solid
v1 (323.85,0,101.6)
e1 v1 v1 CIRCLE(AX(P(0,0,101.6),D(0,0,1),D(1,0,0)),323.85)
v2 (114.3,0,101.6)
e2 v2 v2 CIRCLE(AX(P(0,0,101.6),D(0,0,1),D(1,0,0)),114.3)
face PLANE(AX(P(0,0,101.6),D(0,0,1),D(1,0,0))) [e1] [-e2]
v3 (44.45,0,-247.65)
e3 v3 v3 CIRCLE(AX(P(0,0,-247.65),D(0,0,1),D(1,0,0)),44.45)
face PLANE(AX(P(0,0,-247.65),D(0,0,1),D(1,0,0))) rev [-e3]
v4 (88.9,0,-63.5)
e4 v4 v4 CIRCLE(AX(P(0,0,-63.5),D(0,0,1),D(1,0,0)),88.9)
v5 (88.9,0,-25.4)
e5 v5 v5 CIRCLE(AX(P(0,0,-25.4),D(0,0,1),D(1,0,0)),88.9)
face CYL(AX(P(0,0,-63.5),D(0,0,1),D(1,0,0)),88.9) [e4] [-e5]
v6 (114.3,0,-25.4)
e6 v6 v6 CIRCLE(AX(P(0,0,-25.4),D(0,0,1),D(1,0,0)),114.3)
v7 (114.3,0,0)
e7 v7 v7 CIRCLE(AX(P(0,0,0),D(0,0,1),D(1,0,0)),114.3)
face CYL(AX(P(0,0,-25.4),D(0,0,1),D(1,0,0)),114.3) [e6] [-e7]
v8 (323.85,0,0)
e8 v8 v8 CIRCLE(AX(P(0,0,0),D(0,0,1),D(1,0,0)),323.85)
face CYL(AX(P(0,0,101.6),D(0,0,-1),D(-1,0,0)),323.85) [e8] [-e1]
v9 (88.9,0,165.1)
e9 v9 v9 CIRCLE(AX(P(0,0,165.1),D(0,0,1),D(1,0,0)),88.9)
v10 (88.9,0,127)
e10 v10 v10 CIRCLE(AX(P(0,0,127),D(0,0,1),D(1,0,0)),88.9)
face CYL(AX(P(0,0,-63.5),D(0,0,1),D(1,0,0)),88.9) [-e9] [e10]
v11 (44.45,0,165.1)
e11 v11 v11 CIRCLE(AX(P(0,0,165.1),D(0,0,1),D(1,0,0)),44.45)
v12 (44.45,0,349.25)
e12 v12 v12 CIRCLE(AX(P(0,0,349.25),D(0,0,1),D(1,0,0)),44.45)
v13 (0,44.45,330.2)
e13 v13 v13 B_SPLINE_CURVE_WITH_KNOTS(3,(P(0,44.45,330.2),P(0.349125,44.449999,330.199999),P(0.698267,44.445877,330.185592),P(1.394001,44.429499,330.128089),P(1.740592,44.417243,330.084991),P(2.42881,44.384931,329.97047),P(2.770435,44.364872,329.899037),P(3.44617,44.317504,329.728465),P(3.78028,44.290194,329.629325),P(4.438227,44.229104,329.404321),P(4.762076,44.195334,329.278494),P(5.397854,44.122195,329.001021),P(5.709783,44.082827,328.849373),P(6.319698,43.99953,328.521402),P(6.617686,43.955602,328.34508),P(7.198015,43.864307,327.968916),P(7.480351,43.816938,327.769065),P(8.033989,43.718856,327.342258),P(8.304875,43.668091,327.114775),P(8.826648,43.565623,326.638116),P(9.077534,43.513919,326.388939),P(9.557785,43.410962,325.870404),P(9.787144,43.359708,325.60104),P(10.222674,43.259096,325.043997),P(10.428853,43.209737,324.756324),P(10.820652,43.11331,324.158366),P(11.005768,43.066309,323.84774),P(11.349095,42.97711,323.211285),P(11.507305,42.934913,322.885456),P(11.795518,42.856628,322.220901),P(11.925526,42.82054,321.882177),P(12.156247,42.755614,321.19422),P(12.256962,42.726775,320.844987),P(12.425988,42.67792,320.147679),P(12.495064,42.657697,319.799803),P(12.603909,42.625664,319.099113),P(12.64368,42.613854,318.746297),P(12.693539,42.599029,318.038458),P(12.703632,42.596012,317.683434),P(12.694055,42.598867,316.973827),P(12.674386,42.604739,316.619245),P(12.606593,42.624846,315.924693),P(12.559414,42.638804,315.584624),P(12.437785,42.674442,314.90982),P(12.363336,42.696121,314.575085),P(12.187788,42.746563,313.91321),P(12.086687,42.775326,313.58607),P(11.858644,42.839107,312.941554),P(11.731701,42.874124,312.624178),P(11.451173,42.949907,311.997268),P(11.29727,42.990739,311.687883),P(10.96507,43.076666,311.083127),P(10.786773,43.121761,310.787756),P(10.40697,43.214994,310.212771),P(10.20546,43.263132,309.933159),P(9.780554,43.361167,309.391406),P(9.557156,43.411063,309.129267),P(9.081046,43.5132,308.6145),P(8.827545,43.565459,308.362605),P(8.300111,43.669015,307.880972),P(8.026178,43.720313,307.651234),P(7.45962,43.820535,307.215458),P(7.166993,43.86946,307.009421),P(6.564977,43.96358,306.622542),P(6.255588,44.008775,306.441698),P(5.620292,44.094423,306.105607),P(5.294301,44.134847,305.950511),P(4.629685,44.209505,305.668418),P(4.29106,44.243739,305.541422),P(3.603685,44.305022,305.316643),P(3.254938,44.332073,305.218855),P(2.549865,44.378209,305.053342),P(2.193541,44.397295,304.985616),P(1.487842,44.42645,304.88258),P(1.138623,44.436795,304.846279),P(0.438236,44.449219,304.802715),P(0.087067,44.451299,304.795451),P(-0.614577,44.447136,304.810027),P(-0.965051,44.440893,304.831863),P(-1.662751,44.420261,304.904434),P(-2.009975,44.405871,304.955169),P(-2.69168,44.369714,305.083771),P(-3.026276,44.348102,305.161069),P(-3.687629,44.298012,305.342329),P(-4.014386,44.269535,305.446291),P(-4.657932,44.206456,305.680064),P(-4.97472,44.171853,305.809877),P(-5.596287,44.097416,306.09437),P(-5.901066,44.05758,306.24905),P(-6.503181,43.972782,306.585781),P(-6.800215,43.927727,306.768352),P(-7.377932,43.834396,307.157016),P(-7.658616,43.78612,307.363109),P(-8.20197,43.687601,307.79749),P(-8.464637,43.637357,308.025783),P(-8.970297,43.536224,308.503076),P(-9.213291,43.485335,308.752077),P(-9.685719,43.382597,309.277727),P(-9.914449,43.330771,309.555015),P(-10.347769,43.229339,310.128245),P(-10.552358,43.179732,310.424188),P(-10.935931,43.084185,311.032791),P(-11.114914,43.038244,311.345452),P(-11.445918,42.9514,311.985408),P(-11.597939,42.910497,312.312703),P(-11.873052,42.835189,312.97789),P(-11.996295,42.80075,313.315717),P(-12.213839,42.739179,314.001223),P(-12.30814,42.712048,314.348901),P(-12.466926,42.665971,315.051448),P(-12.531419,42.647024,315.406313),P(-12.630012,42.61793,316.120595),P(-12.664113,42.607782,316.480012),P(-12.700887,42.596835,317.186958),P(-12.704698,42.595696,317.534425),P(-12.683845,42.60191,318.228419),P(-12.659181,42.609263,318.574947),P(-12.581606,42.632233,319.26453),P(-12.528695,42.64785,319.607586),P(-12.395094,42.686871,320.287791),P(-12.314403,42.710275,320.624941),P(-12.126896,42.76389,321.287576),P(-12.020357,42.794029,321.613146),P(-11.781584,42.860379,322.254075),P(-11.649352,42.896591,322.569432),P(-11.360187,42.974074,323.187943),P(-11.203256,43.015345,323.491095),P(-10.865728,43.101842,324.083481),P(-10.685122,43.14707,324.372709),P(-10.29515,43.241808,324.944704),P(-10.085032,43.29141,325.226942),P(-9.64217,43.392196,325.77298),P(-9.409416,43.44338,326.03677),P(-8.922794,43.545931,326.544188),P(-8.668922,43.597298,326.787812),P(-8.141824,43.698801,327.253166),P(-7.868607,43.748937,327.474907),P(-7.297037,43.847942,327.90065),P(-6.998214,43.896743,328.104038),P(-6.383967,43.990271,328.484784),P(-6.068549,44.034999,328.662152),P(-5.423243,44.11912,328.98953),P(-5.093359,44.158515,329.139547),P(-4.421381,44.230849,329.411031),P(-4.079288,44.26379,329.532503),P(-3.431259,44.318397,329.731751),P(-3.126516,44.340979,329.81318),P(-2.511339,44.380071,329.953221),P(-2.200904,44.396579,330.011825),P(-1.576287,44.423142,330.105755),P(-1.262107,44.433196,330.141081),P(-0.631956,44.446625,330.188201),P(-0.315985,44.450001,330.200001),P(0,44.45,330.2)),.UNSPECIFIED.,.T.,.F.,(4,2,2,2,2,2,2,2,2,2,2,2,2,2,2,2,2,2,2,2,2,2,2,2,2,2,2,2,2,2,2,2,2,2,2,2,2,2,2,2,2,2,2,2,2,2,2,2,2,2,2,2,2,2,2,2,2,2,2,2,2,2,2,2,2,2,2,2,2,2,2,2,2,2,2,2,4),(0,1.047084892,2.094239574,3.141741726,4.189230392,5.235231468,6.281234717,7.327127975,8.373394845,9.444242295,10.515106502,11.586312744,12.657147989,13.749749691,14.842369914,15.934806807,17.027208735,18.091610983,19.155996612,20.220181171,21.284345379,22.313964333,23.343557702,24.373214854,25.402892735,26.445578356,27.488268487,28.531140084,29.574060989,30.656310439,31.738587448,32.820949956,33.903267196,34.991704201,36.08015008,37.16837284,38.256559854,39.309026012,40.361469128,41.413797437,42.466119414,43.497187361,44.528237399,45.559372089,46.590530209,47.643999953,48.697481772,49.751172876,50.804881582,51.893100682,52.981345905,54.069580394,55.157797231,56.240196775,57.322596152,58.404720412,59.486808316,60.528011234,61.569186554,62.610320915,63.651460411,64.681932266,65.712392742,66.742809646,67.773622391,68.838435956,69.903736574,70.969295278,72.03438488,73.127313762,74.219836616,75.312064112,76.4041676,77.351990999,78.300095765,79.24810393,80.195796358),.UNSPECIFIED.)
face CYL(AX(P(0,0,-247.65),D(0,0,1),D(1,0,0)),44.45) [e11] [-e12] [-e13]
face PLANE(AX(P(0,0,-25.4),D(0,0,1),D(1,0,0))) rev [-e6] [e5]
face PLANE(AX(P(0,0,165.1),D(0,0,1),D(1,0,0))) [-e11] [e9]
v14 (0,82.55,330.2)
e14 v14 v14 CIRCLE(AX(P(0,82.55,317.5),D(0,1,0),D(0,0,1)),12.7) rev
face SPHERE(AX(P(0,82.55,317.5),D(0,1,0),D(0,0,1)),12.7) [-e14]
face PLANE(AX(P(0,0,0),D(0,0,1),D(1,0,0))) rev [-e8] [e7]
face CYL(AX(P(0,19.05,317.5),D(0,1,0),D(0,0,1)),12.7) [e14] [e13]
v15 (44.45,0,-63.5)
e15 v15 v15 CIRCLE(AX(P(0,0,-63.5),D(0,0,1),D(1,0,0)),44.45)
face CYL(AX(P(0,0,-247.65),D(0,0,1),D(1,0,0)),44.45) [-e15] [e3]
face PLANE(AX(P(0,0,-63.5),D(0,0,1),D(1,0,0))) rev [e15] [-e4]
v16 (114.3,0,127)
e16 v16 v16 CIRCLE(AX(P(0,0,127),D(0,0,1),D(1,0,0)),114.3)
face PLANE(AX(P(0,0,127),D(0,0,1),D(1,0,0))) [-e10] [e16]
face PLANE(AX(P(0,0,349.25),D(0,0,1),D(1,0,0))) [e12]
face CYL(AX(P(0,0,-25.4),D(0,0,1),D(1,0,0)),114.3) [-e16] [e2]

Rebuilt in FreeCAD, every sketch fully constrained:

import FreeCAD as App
import Part
import Sketcher
Q = App.Units.Quantity


def edges_at(feature, points):
    """Names of the edges that pass closest to the given points."""
    edges = feature.Shape.Edges
    near = lambda p: min(range(len(edges)), key=lambda i: edges[i].distToShape(Part.Vertex(*p))[0])
    return sorted({f"Edge{near(p) + 1}" for p in points})

doc = App.newDocument("Part")
body = doc.addObject("PartDesign::Body", "Body")

sketch1 = body.newObject("Sketcher::SketchObject", "Sketch")
sketch1.AttachmentSupport = (doc.getObject("XY_Plane"), [""])
sketch1.MapMode = "FlatFace"
sketch1.addGeometry(Part.Circle(App.Vector(0, 0, 0), App.Vector(0, 0, 1), 323.85), False)
sketch1.addConstraint([
    Sketcher.Constraint("Coincident", 0, 3, -1, 1),
    Sketcher.Constraint("Diameter", 0, Q("25.5 in")),
])
pad1 = body.newObject("PartDesign::Pad", "Pad")
pad1.Profile = sketch1
pad1.Length = Q("4 in")

sketch2 = body.newObject("Sketcher::SketchObject", "Sketch001")
sketch2.AttachmentSupport = (doc.getObject("XY_Plane"), [""])
sketch2.MapMode = "FlatFace"
sketch2.AttachmentOffset = App.Placement(App.Vector(0, 0, 4 * 25.4), App.Rotation())
sketch2.addGeometry(Part.Circle(App.Vector(0, 0, 0), App.Vector(0, 0, 1), 114.3), False)
sketch2.addConstraint([
    Sketcher.Constraint("Coincident", 0, 3, -1, 1),
    Sketcher.Constraint("Diameter", 0, Q("9 in")),
])
pad2 = body.newObject("PartDesign::Pad", "Pad001")
pad2.Profile = sketch2
pad2.Type = "TwoLengths"
pad2.Length = Q("1 in")
pad2.Length2 = Q("5 in")

sketch3 = body.newObject("Sketcher::SketchObject", "Sketch002")
sketch3.AttachmentSupport = (doc.getObject("XY_Plane"), [""])
sketch3.MapMode = "FlatFace"
sketch3.AttachmentOffset = App.Placement(App.Vector(0, 0, 5 * 25.4), App.Rotation())
sketch3.addGeometry(Part.Circle(App.Vector(0, 0, 0), App.Vector(0, 0, 1), 88.9), False)
sketch3.addConstraint([
    Sketcher.Constraint("Coincident", 0, 3, -1, 1),
    Sketcher.Constraint("Diameter", 0, Q("7 in")),
])
pad3 = body.newObject("PartDesign::Pad", "Pad002")
pad3.Profile = sketch3
pad3.Type = "TwoLengths"
pad3.Length = Q("1.5 in")
pad3.Length2 = Q("7.5 in")

sketch4 = body.newObject("Sketcher::SketchObject", "Sketch003")
sketch4.AttachmentSupport = (doc.getObject("XY_Plane"), [""])
sketch4.MapMode = "FlatFace"
sketch4.AttachmentOffset = App.Placement(App.Vector(0, 0, 6.5 * 25.4), App.Rotation())
sketch4.addGeometry(Part.Circle(App.Vector(0, 0, 0), App.Vector(0, 0, 1), 44.45), False)
sketch4.addConstraint([
    Sketcher.Constraint("Coincident", 0, 3, -1, 1),
    Sketcher.Constraint("Diameter", 0, Q("3.5 in")),
])
pad4 = body.newObject("PartDesign::Pad", "Pad003")
pad4.Profile = sketch4
pad4.Type = "TwoLengths"
pad4.Length = Q("7.25 in")
pad4.Length2 = Q("16.25 in")

sketch5 = body.newObject("Sketcher::SketchObject", "Sketch004")
sketch5.AttachmentSupport = (doc.getObject("XZ_Plane"), [""])
sketch5.MapMode = "FlatFace"
sketch5.AttachmentOffset = App.Placement(App.Vector(0, 0, -1.75 * 25.4), App.Rotation())
sketch5.addGeometry(Part.Circle(App.Vector(0, 317.5, 0), App.Vector(0, 0, 1), 12.7), False)
sketch5.addConstraint([
    Sketcher.Constraint("PointOnObject", 0, 3, -2),
    Sketcher.Constraint("Diameter", 0, Q("1 in")),
    Sketcher.Constraint("DistanceY", -1, 1, 0, 3, Q("12.5 in")),
])
pad5 = body.newObject("PartDesign::Pad", "Pad004")
pad5.Profile = sketch5
pad5.Type = "TwoLengths"
pad5.Length = Q("2 in")
pad5.Length2 = Q("1 in")
pad5.Reversed = True
doc.recompute()

fillet = body.newObject("PartDesign::Fillet", "Fillet")
fillet.Base = (pad5, edges_at(pad5, [(0, 95.25, 304.8)]))
fillet.Radius = Q("0.5 in")

doc.recompute()
